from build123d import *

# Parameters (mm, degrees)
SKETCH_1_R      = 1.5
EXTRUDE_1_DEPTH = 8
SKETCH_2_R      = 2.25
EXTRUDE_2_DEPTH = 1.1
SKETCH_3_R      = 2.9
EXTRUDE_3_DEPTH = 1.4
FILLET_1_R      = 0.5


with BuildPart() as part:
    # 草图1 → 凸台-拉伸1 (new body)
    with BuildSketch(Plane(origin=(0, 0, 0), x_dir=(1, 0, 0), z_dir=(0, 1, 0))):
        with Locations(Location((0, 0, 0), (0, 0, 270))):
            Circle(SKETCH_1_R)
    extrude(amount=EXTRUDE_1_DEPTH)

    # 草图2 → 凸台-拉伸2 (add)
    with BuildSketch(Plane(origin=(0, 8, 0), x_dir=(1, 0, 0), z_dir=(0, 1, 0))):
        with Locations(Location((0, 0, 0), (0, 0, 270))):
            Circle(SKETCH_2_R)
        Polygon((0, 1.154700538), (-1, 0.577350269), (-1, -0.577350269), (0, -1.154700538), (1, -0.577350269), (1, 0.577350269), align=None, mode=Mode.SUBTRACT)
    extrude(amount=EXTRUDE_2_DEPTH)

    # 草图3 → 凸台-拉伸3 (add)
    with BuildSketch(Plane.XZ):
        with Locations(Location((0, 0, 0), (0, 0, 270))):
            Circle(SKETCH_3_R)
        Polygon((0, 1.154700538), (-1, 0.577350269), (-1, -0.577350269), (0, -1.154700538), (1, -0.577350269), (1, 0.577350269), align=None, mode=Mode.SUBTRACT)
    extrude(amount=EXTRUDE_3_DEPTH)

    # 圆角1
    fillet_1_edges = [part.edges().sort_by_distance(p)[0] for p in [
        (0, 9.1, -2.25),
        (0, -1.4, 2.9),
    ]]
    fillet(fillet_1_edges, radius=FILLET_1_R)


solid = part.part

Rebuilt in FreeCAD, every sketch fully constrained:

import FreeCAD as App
import Part
import Sketcher
Q = App.Units.Quantity


def edges_at(feature, points):
    """Names of the edges that pass closest to the given points."""
    edges = feature.Shape.Edges
    near = lambda p: min(range(len(edges)), key=lambda i: edges[i].distToShape(Part.Vertex(*p))[0])
    return sorted({f"Edge{near(p) + 1}" for p in points})


def add_polygon(sketch, points):
    """Adds a closed chain of lines whose ends are joined by coincident constraints."""
    first, n = sketch.GeometryCount, len(points)
    for a, b in zip(points, points[1:] + points[:1]):
        sketch.addGeometry(Part.LineSegment(App.Vector(*a, 0), App.Vector(*b, 0)), False)
    for i in range(n):
        sketch.addConstraint(Sketcher.Constraint("Coincident", first + i, 2, first + (i + 1) % n, 1))

doc = App.newDocument("Part")
body = doc.addObject("PartDesign::Body", "Body")

# Sketch on XZ plane
sketch1 = body.newObject("Sketcher::SketchObject", "Sketch")
sketch1.AttachmentSupport = (doc.getObject("XZ_Plane"), [""])
sketch1.MapMode = "FlatFace"
sketch1.addGeometry(Part.Circle(App.Vector(0, 0, 0), App.Vector(0, 0, 1), 1.5), False)
sketch1.addConstraint([
    Sketcher.Constraint("Coincident", 0, 3, -1, 1),
    Sketcher.Constraint("Diameter", 0, 3.0),
])
pad1 = body.newObject("PartDesign::Pad", "Pad")
pad1.Profile = sketch1
pad1.Length = 8
pad1.Reversed = True

# Sketch on XZ plane
sketch2 = body.newObject("Sketcher::SketchObject", "Sketch001")
sketch2.AttachmentSupport = (doc.getObject("XZ_Plane"), [""])
sketch2.MapMode = "FlatFace"
sketch2.AttachmentOffset = App.Placement(App.Vector(0, 0, -8), App.Rotation())
sketch2.addGeometry(Part.Circle(App.Vector(0, 0, 0), App.Vector(0, 0, 1), 2.2), False)  # 0
add_polygon(sketch2, [(-1, -0.6), (0, -1.2), (1, -0.6), (1, 0.6), (0, 1.2), (-1, 0.6)])  # lines 1-6
sketch2.addConstraint([
    Sketcher.Constraint("Vertical", 3),
    Sketcher.Constraint("Vertical", 6),
    Sketcher.Constraint("Coincident", 0, 3, -1, 1),
    Sketcher.Constraint("Symmetric", 1, 2, 4, 2, -1, 1),
    Sketcher.Constraint("Symmetric", 2, 2, 5, 2, -1, 1),
    Sketcher.Constraint("PointOnObject", 1, 2, -2),
    Sketcher.Constraint("Parallel", 1, 4),
    Sketcher.Constraint("Horizontal", 3, 2, 5, 2),
    Sketcher.Constraint("Diameter", 0, 4.5),
    Sketcher.Constraint("Angle", 1, Q("-30 deg")),
    Sketcher.Constraint("DistanceX", -1, 1, 2, 2, 1.0),
    Sketcher.Constraint("DistanceY", 3, 1, 3, 2, 1.154701),
])
pad2 = body.newObject("PartDesign::Pad", "Pad001")
pad2.Profile = sketch2
pad2.Length = 1.1
pad2.Reversed = True

# Sketch on XZ plane
sketch3 = body.newObject("Sketcher::SketchObject", "Sketch002")
sketch3.AttachmentSupport = (doc.getObject("XZ_Plane"), [""])
sketch3.MapMode = "FlatFace"
sketch3.addGeometry(Part.Circle(App.Vector(0, 0, 0), App.Vector(0, 0, 1), 2.9), False)  # 0
add_polygon(sketch3, [(-1, 0.6), (0, 1.2), (1, 0.6), (1, -0.6), (0, -1.2), (-1, -0.6)])  # lines 1-6
sketch3.addConstraint([
    Sketcher.Constraint("Vertical", 3),
    Sketcher.Constraint("Vertical", 6),
    Sketcher.Constraint("Coincident", 0, 3, -1, 1),
    Sketcher.Constraint("Symmetric", 1, 2, 4, 2, -1, 1),
    Sketcher.Constraint("Symmetric", 2, 2, 5, 2, -1, 1),
    Sketcher.Constraint("PointOnObject", 1, 2, -2),
    Sketcher.Constraint("Parallel", 1, 4),
    Sketcher.Constraint("Horizontal", 3, 2, 5, 2),
    Sketcher.Constraint("Diameter", 0, 5.8),
    Sketcher.Constraint("Angle", 1, Q("30 deg")),
    Sketcher.Constraint("DistanceX", -1, 1, 2, 2, 1.0),
    Sketcher.Constraint("DistanceY", 3, 2, 3, 1, 1.154701),
])
pad3 = body.newObject("PartDesign::Pad", "Pad002")
pad3.Profile = sketch3
pad3.Length = 1.4
doc.recompute()

fillet = body.newObject("PartDesign::Fillet", "Fillet")
fillet.Base = (pad3, edges_at(pad3, [(0, 9.1, -2.25), (0, -1.4, 2.9)]))
fillet.Radius = 0.5

doc.recompute()
